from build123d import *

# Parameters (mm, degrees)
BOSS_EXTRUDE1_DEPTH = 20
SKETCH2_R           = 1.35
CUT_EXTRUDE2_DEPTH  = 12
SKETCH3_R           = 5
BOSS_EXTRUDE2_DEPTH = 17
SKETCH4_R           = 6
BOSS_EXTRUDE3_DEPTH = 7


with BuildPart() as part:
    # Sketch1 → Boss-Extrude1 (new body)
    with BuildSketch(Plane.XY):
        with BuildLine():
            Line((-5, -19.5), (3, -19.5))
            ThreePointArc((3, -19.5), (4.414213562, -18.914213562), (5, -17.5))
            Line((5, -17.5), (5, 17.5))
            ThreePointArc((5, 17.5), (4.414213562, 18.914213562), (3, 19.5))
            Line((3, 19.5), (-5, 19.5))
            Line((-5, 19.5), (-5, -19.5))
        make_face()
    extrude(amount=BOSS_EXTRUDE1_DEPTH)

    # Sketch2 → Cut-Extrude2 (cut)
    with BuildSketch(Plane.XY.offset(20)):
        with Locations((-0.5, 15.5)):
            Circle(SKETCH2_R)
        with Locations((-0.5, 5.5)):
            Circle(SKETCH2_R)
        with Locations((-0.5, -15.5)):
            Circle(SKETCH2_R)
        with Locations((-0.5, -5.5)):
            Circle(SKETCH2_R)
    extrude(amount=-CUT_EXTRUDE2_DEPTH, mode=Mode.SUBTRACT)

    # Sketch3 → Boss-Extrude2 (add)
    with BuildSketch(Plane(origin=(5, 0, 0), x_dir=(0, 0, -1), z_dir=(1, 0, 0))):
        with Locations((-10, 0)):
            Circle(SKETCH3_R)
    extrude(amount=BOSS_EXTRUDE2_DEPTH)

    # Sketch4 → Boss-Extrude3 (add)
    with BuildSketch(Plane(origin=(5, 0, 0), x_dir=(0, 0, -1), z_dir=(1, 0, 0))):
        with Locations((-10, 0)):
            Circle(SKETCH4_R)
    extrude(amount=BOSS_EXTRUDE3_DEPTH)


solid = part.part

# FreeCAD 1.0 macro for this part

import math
import FreeCAD as App
import Part
import Sketcher
from FreeCAD import Vector
Q = App.Units.Quantity

doc = App.newDocument("Part")
body = doc.addObject("PartDesign::Body", "Body")

# Sketch on XY plane
sketch1 = body.newObject("Sketcher::SketchObject", "Sketch")
sketch1.AttachmentSupport = (doc.getObject("XY_Plane"), [""])
sketch1.MapMode = "FlatFace"
sketch1.addGeometry([
    Part.LineSegment(Vector(-5, -19.5, 0), Vector(3, -19.5, 0)),  # 0
    Part.ArcOfCircle(Part.Circle(Vector(3, -17.5, 0), Vector(0, 0, 1), 2), math.radians(-90), math.radians(0)),  # 1
    Part.LineSegment(Vector(5, -17.5, 0), Vector(5, 17.5, 0)),  # 2
    Part.ArcOfCircle(Part.Circle(Vector(3, 17.5, 0), Vector(0, 0, 1), 2), math.radians(0), math.radians(90)),  # 3
    Part.LineSegment(Vector(3, 19.5, 0), Vector(-5, 19.5, 0)),  # 4
    Part.LineSegment(Vector(-5, 19.5, 0), Vector(-5, -19.5, 0)),  # 5
], False)
sketch1.addConstraint([
    Sketcher.Constraint("Tangent", 0, 2, 1, 1),
    Sketcher.Constraint("Tangent", 1, 2, 2, 1),
    Sketcher.Constraint("Tangent", 2, 2, 3, 1),
    Sketcher.Constraint("Tangent", 3, 2, 4, 1),
    Sketcher.Constraint("Coincident", 4, 2, 5, 1),
    Sketcher.Constraint("Coincident", 5, 2, 0, 1),
    Sketcher.Constraint("Horizontal", 0),
    Sketcher.Constraint("Vertical", 2),
    Sketcher.Constraint("Horizontal", 4),
    Sketcher.Constraint("Vertical", 5),
    Sketcher.Constraint("Equal", 1, 3),
    Sketcher.Constraint("Radius", 1, Q("2 mm")),
    Sketcher.Constraint("DistanceX", 0, 1, 0, 2, Q("8 mm")),
    Sketcher.Constraint("DistanceY", 2, 1, 2, 2, Q("35 mm")),
    Sketcher.Constraint("DistanceX", -1, 1, 1, 3, Q("3 mm")),
    Sketcher.Constraint("DistanceY", 1, 3, -1, 1, Q("17.5 mm")),
])
pad1 = body.newObject("PartDesign::Pad", "Pad")
pad1.Profile = sketch1
pad1.Length = 20

# Sketch on XY plane
sketch2 = body.newObject("Sketcher::SketchObject", "Sketch001")
sketch2.AttachmentSupport = (doc.getObject("XY_Plane"), [""])
sketch2.MapMode = "FlatFace"
sketch2.AttachmentOffset = App.Placement(Vector(0, 0, 20), App.Rotation())
sketch2.addGeometry([
    Part.Circle(Vector(-0.5, 15.5, 0), Vector(0, 0, 1), 1.35),
    Part.Circle(Vector(-0.5, 5.5, 0), Vector(0, 0, 1), 1.35),
    Part.Circle(Vector(-0.5, -15.5, 0), Vector(0, 0, 1), 1.35),
    Part.Circle(Vector(-0.5, -5.5, 0), Vector(0, 0, 1), 1.35),
], False)
sketch2.addConstraint([
    Sketcher.Constraint("Equal", 0, 1),
    Sketcher.Constraint("Equal", 1, 2),
    Sketcher.Constraint("Equal", 2, 3),
    Sketcher.Constraint("Symmetric", 0, 3, 2, 3, -1),
    Sketcher.Constraint("Symmetric", 1, 3, 3, 3, -1),
    Sketcher.Constraint("Vertical", 0, 3, 1, 3),
    Sketcher.Constraint("Diameter", 0, Q("2.7 mm")),
    Sketcher.Constraint("DistanceY", 1, 3, 0, 3, Q("10 mm")),
    Sketcher.Constraint("DistanceY", 2, 3, 1, 3, Q("21 mm")),
    Sketcher.Constraint("DistanceX", 0, 3, -1, 1, Q("0.5 mm")),
])
pocket1 = body.newObject("PartDesign::Pocket", "Pocket")
pocket1.Profile = sketch2
pocket1.Length = 12

# Sketch on YZ plane
sketch3 = body.newObject("Sketcher::SketchObject", "Sketch002")
sketch3.AttachmentSupport = (doc.getObject("YZ_Plane"), [""])
sketch3.MapMode = "FlatFace"
sketch3.AttachmentOffset = App.Placement(Vector(0, 0, 5), App.Rotation())
sketch3.addGeometry(Part.Circle(Vector(0, 10, 0), Vector(0, 0, 1), 5), False)
sketch3.addConstraint([
    Sketcher.Constraint("PointOnObject", 0, 3, -2),
    Sketcher.Constraint("Diameter", 0, Q("10 mm")),
    Sketcher.Constraint("DistanceY", -1, 1, 0, 3, Q("10 mm")),
])
pad2 = body.newObject("PartDesign::Pad", "Pad001")
pad2.Profile = sketch3
pad2.Length = 17

# Sketch on YZ plane
sketch4 = body.newObject("Sketcher::SketchObject", "Sketch003")
sketch4.AttachmentSupport = (doc.getObject("YZ_Plane"), [""])
sketch4.MapMode = "FlatFace"
sketch4.AttachmentOffset = App.Placement(Vector(0, 0, 5), App.Rotation())
sketch4.addGeometry(Part.Circle(Vector(0, 10, 0), Vector(0, 0, 1), 6), False)
sketch4.addConstraint([
    Sketcher.Constraint("PointOnObject", 0, 3, -2),
    Sketcher.Constraint("Diameter", 0, Q("12 mm")),
    Sketcher.Constraint("DistanceY", -1, 1, 0, 3, Q("10 mm")),
])
pad3 = body.newObject("PartDesign::Pad", "Pad002")
pad3.Profile = sketch4
pad3.Length = 7

doc.recompute()
